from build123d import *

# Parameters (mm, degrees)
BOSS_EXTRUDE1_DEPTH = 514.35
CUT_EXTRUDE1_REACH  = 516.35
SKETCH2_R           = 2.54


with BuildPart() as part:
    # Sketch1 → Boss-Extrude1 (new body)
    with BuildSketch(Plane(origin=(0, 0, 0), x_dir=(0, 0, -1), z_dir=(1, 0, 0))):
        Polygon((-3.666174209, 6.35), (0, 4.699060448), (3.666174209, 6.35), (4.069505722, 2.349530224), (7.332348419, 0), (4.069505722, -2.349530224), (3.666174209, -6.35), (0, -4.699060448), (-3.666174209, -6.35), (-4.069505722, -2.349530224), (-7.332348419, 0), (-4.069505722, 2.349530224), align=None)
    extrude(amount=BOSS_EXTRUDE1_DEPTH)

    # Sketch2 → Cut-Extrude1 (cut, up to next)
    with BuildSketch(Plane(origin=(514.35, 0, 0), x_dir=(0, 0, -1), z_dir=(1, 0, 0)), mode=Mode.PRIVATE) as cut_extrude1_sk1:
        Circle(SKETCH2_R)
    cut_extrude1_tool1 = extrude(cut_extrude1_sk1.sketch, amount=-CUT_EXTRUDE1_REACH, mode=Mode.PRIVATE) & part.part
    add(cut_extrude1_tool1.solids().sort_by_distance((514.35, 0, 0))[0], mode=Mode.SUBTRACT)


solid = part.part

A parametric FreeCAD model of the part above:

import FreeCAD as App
import Part
import Sketcher

V = App.Vector
Q = App.Units.Quantity

doc = App.newDocument("Part")
body = doc.addObject("PartDesign::Body", "Body")

# Sketch on YZ plane
sketch1 = body.newObject("Sketcher::SketchObject", "Sketch")
sketch1.AttachmentSupport = (doc.getObject("YZ_Plane"), [""])
sketch1.MapMode = "FlatFace"
sketch1.addGeometry(Part.LineSegment(V(4.7, 0, 0), V(6.3, 3.7, 0)), False)
sketch1.addGeometry(Part.LineSegment(V(6.3, 3.7, 0), V(2.3, 4.1, 0)), False)
sketch1.addGeometry(Part.LineSegment(V(2.3, 4.1, 0), V(0, 7.3, 0)), False)
sketch1.addGeometry(Part.LineSegment(V(0, 7.3, 0), V(-2.3, 4.1, 0)), False)
sketch1.addGeometry(Part.LineSegment(V(-2.3, 4.1, 0), V(-6.3, 3.7, 0)), False)
sketch1.addGeometry(Part.LineSegment(V(-6.3, 3.7, 0), V(-4.7, 0, 0)), False)
sketch1.addGeometry(Part.LineSegment(V(-4.7, 0, 0), V(-6.3, -3.7, 0)), False)
sketch1.addGeometry(Part.LineSegment(V(-6.3, -3.7, 0), V(-2.3, -4.1, 0)), False)
sketch1.addGeometry(Part.LineSegment(V(-2.3, -4.1, 0), V(0, -7.3, 0)), False)
sketch1.addGeometry(Part.LineSegment(V(0, -7.3, 0), V(2.3, -4.1, 0)), False)
sketch1.addGeometry(Part.LineSegment(V(2.3, -4.1, 0), V(6.3, -3.7, 0)), False)
sketch1.addGeometry(Part.LineSegment(V(6.3, -3.7, 0), V(4.7, 0, 0)), False)
sketch1.addConstraint(Sketcher.Constraint("Coincident", 0, 2, 1, 1))
sketch1.addConstraint(Sketcher.Constraint("Coincident", 1, 2, 2, 1))
sketch1.addConstraint(Sketcher.Constraint("Coincident", 2, 2, 3, 1))
sketch1.addConstraint(Sketcher.Constraint("Coincident", 3, 2, 4, 1))
sketch1.addConstraint(Sketcher.Constraint("Coincident", 4, 2, 5, 1))
sketch1.addConstraint(Sketcher.Constraint("Coincident", 5, 2, 6, 1))
sketch1.addConstraint(Sketcher.Constraint("Coincident", 6, 2, 7, 1))
sketch1.addConstraint(Sketcher.Constraint("Coincident", 7, 2, 8, 1))
sketch1.addConstraint(Sketcher.Constraint("Coincident", 8, 2, 9, 1))
sketch1.addConstraint(Sketcher.Constraint("Coincident", 9, 2, 10, 1))
sketch1.addConstraint(Sketcher.Constraint("Coincident", 10, 2, 11, 1))
sketch1.addConstraint(Sketcher.Constraint("Coincident", 11, 2, 0, 1))
sketch1.addConstraint(Sketcher.Constraint("Symmetric", 0, 2, 6, 2, -1, 1))
sketch1.addConstraint(Sketcher.Constraint("Symmetric", 1, 2, 7, 2, -1, 1))
sketch1.addConstraint(Sketcher.Constraint("Symmetric", 2, 2, 8, 2, -1, 1))
sketch1.addConstraint(Sketcher.Constraint("Symmetric", 3, 2, 9, 2, -1, 1))
sketch1.addConstraint(Sketcher.Constraint("Symmetric", 4, 2, 10, 2, -1, 1))
sketch1.addConstraint(Sketcher.Constraint("Symmetric", 5, 2, 11, 2, -1, 1))
sketch1.addConstraint(Sketcher.Constraint("Symmetric", 1, 2, 3, 2, -2))
sketch1.addConstraint(Sketcher.Constraint("Symmetric", 0, 2, 4, 2, -2))
sketch1.addConstraint(Sketcher.Constraint("PointOnObject", 2, 2, -2))
sketch1.addConstraint(Sketcher.Constraint("PointOnObject", 5, 2, -1))
sketch1.addConstraint(Sketcher.Constraint("Equal", 0, 1))
sketch1.addConstraint(Sketcher.Constraint("Equal", 1, 2))
sketch1.addConstraint(Sketcher.Constraint("DistanceX", 4, 2, 0, 2, Q("0.5 in")))
sketch1.addConstraint(Sketcher.Constraint("Distance", 0, 4.020751))
sketch1.addConstraint(Sketcher.Constraint("DistanceX", -1, 1, 1, 2, 2.34953))
sketch1.addConstraint(Sketcher.Constraint("DistanceY", -1, 1, 2, 2, 7.332348))
pad1 = body.newObject("PartDesign::Pad", "Pad")
pad1.Profile = sketch1
pad1.Length = Q("20.25 in")

# Sketch on YZ plane
sketch2 = body.newObject("Sketcher::SketchObject", "Sketch001")
sketch2.AttachmentSupport = (doc.getObject("YZ_Plane"), [""])
sketch2.MapMode = "FlatFace"
sketch2.AttachmentOffset = App.Placement(V(0, 0, 20.25 * 25.4), App.Rotation())
sketch2.addGeometry(Part.Circle(V(0, 0, 0), V(0, 0, 1), 2.5), False)
sketch2.addConstraint(Sketcher.Constraint("Coincident", 0, 3, -1, 1))
sketch2.addConstraint(Sketcher.Constraint("Diameter", 0, Q("0.2 in")))
pocket1 = body.newObject("PartDesign::Pocket", "Pocket")
pocket1.Profile = sketch2
pocket1.Type = "UpToFirst"

doc.recompute()
